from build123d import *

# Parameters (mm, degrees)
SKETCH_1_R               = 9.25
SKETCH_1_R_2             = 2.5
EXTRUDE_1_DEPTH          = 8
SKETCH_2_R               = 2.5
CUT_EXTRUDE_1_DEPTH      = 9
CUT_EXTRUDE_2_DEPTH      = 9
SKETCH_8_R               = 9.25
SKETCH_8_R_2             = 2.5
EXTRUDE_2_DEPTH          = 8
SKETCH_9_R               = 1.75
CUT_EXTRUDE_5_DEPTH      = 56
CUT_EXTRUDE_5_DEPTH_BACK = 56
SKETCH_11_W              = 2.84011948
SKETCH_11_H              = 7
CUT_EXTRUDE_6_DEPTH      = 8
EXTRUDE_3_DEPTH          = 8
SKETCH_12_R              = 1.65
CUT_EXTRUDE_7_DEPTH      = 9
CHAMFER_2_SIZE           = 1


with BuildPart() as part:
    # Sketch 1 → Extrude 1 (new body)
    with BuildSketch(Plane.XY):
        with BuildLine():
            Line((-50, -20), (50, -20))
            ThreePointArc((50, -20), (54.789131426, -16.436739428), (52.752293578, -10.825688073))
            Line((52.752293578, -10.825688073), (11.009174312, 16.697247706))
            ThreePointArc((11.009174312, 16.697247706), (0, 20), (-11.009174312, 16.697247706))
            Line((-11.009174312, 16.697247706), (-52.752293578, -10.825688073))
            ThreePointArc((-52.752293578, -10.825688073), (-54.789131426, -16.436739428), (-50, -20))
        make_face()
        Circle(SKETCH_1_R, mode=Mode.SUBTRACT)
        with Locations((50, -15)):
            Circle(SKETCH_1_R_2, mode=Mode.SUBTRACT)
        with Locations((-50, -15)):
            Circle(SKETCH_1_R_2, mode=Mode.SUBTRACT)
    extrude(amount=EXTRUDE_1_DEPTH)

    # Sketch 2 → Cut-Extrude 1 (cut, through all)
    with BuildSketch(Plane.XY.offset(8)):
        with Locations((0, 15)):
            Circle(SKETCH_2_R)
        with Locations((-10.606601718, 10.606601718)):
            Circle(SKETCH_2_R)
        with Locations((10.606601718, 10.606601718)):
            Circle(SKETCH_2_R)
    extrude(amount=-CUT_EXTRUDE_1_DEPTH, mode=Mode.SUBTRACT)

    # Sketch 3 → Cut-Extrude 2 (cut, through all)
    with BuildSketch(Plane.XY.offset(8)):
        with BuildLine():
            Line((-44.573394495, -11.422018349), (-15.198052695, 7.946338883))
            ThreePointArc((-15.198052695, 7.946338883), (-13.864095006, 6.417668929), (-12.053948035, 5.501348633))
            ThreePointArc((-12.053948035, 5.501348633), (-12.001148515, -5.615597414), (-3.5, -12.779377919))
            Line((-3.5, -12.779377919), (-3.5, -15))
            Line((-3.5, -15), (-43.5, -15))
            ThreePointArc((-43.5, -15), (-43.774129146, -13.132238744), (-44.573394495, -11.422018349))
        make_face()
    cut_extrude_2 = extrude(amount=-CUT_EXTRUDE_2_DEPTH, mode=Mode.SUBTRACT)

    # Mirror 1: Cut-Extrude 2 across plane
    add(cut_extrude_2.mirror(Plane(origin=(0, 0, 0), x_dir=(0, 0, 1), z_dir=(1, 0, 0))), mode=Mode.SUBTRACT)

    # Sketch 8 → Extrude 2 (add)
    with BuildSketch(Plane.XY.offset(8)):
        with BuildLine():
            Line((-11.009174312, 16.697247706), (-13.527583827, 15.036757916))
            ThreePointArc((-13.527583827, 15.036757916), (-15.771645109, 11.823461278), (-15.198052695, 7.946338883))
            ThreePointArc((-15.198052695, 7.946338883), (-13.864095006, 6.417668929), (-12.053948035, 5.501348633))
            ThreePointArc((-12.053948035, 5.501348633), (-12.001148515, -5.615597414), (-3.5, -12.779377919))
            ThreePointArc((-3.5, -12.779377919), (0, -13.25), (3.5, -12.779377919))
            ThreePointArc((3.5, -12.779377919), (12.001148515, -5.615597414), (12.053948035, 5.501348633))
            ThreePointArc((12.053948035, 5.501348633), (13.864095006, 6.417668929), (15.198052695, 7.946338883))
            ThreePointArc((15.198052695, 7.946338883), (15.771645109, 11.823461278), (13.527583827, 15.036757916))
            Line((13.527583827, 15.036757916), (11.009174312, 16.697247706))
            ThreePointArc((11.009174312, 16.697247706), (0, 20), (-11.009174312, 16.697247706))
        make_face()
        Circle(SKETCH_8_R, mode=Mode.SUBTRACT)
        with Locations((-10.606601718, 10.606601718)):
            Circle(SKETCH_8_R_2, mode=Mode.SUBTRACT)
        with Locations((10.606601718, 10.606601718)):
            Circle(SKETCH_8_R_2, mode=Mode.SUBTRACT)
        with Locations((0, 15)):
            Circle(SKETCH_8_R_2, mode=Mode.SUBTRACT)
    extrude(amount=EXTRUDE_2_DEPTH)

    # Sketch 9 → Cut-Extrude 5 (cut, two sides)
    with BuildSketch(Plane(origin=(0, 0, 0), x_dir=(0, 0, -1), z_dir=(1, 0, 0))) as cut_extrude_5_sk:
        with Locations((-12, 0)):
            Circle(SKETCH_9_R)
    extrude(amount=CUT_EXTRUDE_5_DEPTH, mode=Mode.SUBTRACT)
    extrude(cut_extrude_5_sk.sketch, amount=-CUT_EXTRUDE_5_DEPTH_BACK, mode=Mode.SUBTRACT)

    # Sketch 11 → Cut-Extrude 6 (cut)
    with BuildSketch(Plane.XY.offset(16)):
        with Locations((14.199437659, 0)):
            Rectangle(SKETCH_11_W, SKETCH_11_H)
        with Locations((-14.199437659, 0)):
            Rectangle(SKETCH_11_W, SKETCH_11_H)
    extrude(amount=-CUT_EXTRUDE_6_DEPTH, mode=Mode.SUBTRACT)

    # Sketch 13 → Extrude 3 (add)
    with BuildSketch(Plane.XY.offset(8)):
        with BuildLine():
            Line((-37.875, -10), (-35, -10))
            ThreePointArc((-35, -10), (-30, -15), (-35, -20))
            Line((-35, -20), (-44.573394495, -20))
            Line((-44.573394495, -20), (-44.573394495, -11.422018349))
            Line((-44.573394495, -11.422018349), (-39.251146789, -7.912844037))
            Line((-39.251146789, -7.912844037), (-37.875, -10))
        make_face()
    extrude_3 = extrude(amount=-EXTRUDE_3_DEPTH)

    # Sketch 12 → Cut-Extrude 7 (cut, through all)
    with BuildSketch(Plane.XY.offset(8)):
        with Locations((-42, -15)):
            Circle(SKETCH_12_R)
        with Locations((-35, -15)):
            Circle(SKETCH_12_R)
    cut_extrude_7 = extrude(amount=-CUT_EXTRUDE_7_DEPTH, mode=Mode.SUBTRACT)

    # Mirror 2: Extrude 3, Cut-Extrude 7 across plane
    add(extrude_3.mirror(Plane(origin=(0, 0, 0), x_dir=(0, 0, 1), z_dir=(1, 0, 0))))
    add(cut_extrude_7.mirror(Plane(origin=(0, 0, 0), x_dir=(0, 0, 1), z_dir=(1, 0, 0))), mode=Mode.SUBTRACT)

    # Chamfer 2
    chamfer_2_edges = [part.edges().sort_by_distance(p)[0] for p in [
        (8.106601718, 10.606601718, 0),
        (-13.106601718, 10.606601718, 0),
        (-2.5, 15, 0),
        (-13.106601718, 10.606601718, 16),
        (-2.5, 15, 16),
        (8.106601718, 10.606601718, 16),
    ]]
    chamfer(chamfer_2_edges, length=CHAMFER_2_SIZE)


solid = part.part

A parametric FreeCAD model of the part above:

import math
import FreeCAD as App
import Part
import Sketcher

V = App.Vector
Q = App.Units.Quantity


def edges_at(feature, points):
    """Names of the edges that pass closest to the given points."""
    edges = feature.Shape.Edges
    near = lambda p: min(range(len(edges)), key=lambda i: edges[i].distToShape(Part.Vertex(*p))[0])
    return sorted({f"Edge{near(p) + 1}" for p in points})

doc = App.newDocument("Part")
body = doc.addObject("PartDesign::Body", "Body")

sketch1 = body.newObject("Sketcher::SketchObject", "Sketch")
sketch1.AttachmentSupport = (doc.getObject("XY_Plane"), [""])
sketch1.MapMode = "FlatFace"
sketch1.addGeometry([
    Part.LineSegment(V(-50, -20, 0), V(50, -20, 0)),
    Part.ArcOfCircle(Part.Circle(V(50, -15, 0), V(0, 0, 1), 5), math.radians(-90), math.radians(57)),
    Part.LineSegment(V(52.8, -10.8, 0), V(11, 16.7, 0)),
    Part.ArcOfCircle(Part.Circle(V(0, 0, 0), V(0, 0, 1), 20), math.radians(57), math.radians(123)),
    Part.LineSegment(V(-11, 16.7, 0), V(-52.8, -10.8, 0)),
    Part.ArcOfCircle(Part.Circle(V(-50, -15, 0), V(0, 0, 1), 5), math.radians(123), math.radians(270)),
    Part.Circle(V(-50, -15, 0), V(0, 0, 1), 2.5),
    Part.Circle(V(50, -15, 0), V(0, 0, 1), 2.5),
    Part.Circle(V(0, 0, 0), V(0, 0, 1), 9.2),
], False)
sketch1.addConstraint([
    Sketcher.Constraint("Tangent", 0, 2, 1, 1),
    Sketcher.Constraint("Tangent", 1, 2, 2, 1),
    Sketcher.Constraint("Tangent", 2, 2, 3, 1),
    Sketcher.Constraint("Tangent", 3, 2, 4, 1),
    Sketcher.Constraint("Tangent", 4, 2, 5, 1),
    Sketcher.Constraint("Tangent", 5, 2, 0, 1),
    Sketcher.Constraint("Horizontal", 0),
    Sketcher.Constraint("Coincident", 3, 3, -1, 1),
    Sketcher.Constraint("Coincident", 8, 3, -1, 1),
    Sketcher.Constraint("Coincident", 6, 3, 5, 3),
    Sketcher.Constraint("Coincident", 7, 3, 1, 3),
    Sketcher.Constraint("Equal", 1, 5),
    Sketcher.Constraint("Equal", 6, 7),
    Sketcher.Constraint("Horizontal", 2, 2, 3, 2),
    Sketcher.Constraint("Diameter", 6, Q("5 mm")),
    Sketcher.Constraint("Radius", 1, Q("5 mm")),
    Sketcher.Constraint("Radius", 3, Q("20 mm")),
    Sketcher.Constraint("Diameter", 8, Q("18.5 mm")),
    Sketcher.Constraint("DistanceX", 0, 1, 0, 2, Q("100 mm")),
    Sketcher.Constraint("Distance", 2, Q("50 mm")),
])
pad1 = body.newObject("PartDesign::Pad", "Pad")
pad1.Profile = sketch1
pad1.Length = 8

sketch2 = body.newObject("Sketcher::SketchObject", "Sketch001")
sketch2.AttachmentSupport = (doc.getObject("XY_Plane"), [""])
sketch2.MapMode = "FlatFace"
sketch2.AttachmentOffset = App.Placement(V(0, 0, 8), App.Rotation())
sketch2.addGeometry([
    Part.Circle(V(0, 15, 0), V(0, 0, 1), 2.5),
    Part.Circle(V(-10.6, 10.6, 0), V(0, 0, 1), 2.5),
    Part.Circle(V(10.6, 10.6, 0), V(0, 0, 1), 2.5),
], False)
sketch2.addConstraint([
    Sketcher.Constraint("Equal", 0, 1),
    Sketcher.Constraint("Equal", 1, 2),
    Sketcher.Constraint("Symmetric", 1, 3, 2, 3, -2),
    Sketcher.Constraint("PointOnObject", 0, 3, -2),
    Sketcher.Constraint("Diameter", 0, Q("5 mm")),
    Sketcher.Constraint("DistanceY", -1, 1, 0, 3, Q("15 mm")),
    Sketcher.Constraint("DistanceX", 1, 3, -1, 1, Q("10.606602 mm")),
    Sketcher.Constraint("DistanceY", -1, 1, 1, 3, Q("10.606602 mm")),
])
pocket1 = body.newObject("PartDesign::Pocket", "Pocket")
pocket1.Profile = sketch2
pocket1.Type = "ThroughAll"

sketch3 = body.newObject("Sketcher::SketchObject", "Sketch002")
sketch3.AttachmentSupport = (doc.getObject("XY_Plane"), [""])
sketch3.MapMode = "FlatFace"
sketch3.AttachmentOffset = App.Placement(V(0, 0, 8), App.Rotation())
sketch3.addGeometry([
    Part.LineSegment(V(-15.2, 7.9, 0), V(-44.6, -11.4, 0)),
    Part.ArcOfCircle(Part.Circle(V(-50, -15, 0), V(0, 0, 1), 6.5), math.radians(0), math.radians(33)),
    Part.LineSegment(V(-43.5, -15, 0), V(-3.5, -15, 0)),
    Part.LineSegment(V(-3.5, -15, 0), V(-3.5, -12.8, 0)),
    Part.ArcOfCircle(Part.Circle(V(0, 0, 0), V(0, 0, 1), 13.3), math.radians(155), math.radians(255)),
    Part.ArcOfCircle(Part.Circle(V(-10.6, 10.6, 0), V(0, 0, 1), 5.3), math.radians(-150), math.radians(-106)),
], False)
sketch3.addConstraint([
    Sketcher.Constraint("Coincident", 0, 2, 1, 2),
    Sketcher.Constraint("Coincident", 1, 1, 2, 1),
    Sketcher.Constraint("Coincident", 2, 2, 3, 1),
    Sketcher.Constraint("Coincident", 3, 2, 4, 2),
    Sketcher.Constraint("Coincident", 4, 1, 5, 2),
    Sketcher.Constraint("Coincident", 5, 1, 0, 1),
    Sketcher.Constraint("Horizontal", 2),
    Sketcher.Constraint("Vertical", 3),
    Sketcher.Constraint("Coincident", 4, 3, -1, 1),
    Sketcher.Constraint("Radius", 1, Q("6.5 mm")),
    Sketcher.Constraint("DistanceX", 2, 1, 2, 2, Q("40 mm")),
    Sketcher.Constraint("Radius", 4, Q("13.25 mm")),
    Sketcher.Constraint("DistanceX", 1, 3, -1, 1, Q("50 mm")),
    Sketcher.Constraint("DistanceY", 1, 3, -1, 1, Q("15 mm")),
    Sketcher.Constraint("DistanceY", 1, 1, -1, 1, Q("15 mm")),
    Sketcher.Constraint("Radius", 5, Q("5.306451 mm")),
    Sketcher.Constraint("DistanceX", 5, 3, -1, 1, Q("10.606602 mm")),
    Sketcher.Constraint("DistanceY", -1, 1, 5, 3, Q("10.606602 mm")),
    Sketcher.Constraint("Distance", 0, Q("35.185849 mm")),
    Sketcher.Constraint("DistanceY", 0, 2, -1, 1, Q("11.422018 mm")),
])
pocket2 = body.newObject("PartDesign::Pocket", "Pocket001")
pocket2.Profile = sketch3
pocket2.Type = "ThroughAll"
doc.recompute()

mirrored = body.newObject("PartDesign::Mirrored", "Mirrored")
mirrored.Originals = [pocket2]
mirrored.MirrorPlane = (doc.getObject("YZ_Plane"), [""])
body.Tip = mirrored

sketch4 = body.newObject("Sketcher::SketchObject", "Sketch003")
sketch4.AttachmentSupport = (doc.getObject("XY_Plane"), [""])
sketch4.MapMode = "FlatFace"
sketch4.AttachmentOffset = App.Placement(V(0, 0, 8), App.Rotation())
sketch4.addGeometry([
    Part.LineSegment(V(-11, 16.7, 0), V(-13.5, 15, 0)),
    Part.ArcOfCircle(Part.Circle(V(-10.6, 10.6, 0), V(0, 0, 1), 5.3), math.radians(123), math.radians(210)),
    Part.ArcOfCircle(Part.Circle(V(-10.6, 10.6, 0), V(0, 0, 1), 5.3), math.radians(-150), math.radians(-106)),
    Part.ArcOfCircle(Part.Circle(V(0, 0, 0), V(0, 0, 1), 13.3), math.radians(155), math.radians(255)),
    Part.ArcOfCircle(Part.Circle(V(0, 0, 0), V(0, 0, 1), 13.2), math.radians(-105), math.radians(-75)),
    Part.ArcOfCircle(Part.Circle(V(0, 0, 0), V(0, 0, 1), 13.3), math.radians(-75), math.radians(25)),
    Part.ArcOfCircle(Part.Circle(V(10.6, 10.6, 0), V(0, 0, 1), 5.3), math.radians(-74), math.radians(-30)),
    Part.ArcOfCircle(Part.Circle(V(10.6, 10.6, 0), V(0, 0, 1), 5.3), math.radians(-30), math.radians(57)),
    Part.LineSegment(V(13.5, 15, 0), V(11, 16.7, 0)),
    Part.ArcOfCircle(Part.Circle(V(0, 0, 0), V(0, 0, 1), 20), math.radians(57), math.radians(123)),
    Part.Circle(V(0, 0, 0), V(0, 0, 1), 9.2),
    Part.Circle(V(-10.6, 10.6, 0), V(0, 0, 1), 2.5),
    Part.Circle(V(10.6, 10.6, 0), V(0, 0, 1), 2.5),
    Part.Circle(V(0, 15, 0), V(0, 0, 1), 2.5),
], False)
sketch4.addConstraint([
    Sketcher.Constraint("Tangent", 0, 2, 1, 1),
    Sketcher.Constraint("Tangent", 1, 2, 2, 1),
    Sketcher.Constraint("Coincident", 2, 2, 3, 1),
    Sketcher.Constraint("Tangent", 3, 2, 4, 1),
    Sketcher.Constraint("Tangent", 4, 2, 5, 1),
    Sketcher.Constraint("Coincident", 5, 2, 6, 1),
    Sketcher.Constraint("Tangent", 6, 2, 7, 1),
    Sketcher.Constraint("Tangent", 7, 2, 8, 1),
    Sketcher.Constraint("Tangent", 8, 2, 9, 1),
    Sketcher.Constraint("Tangent", 9, 2, 0, 1),
    Sketcher.Constraint("Coincident", 3, 3, -1, 1),
    Sketcher.Constraint("Coincident", 5, 3, -1, 1),
    Sketcher.Constraint("Coincident", 9, 3, -1, 1),
    Sketcher.Constraint("Coincident", 10, 3, -1, 1),
    Sketcher.Constraint("Coincident", 11, 3, 1, 3),
    Sketcher.Constraint("Coincident", 12, 3, 6, 3),
    Sketcher.Constraint("Equal", 1, 2),
    Sketcher.Constraint("Equal", 2, 6),
    Sketcher.Constraint("Equal", 6, 7),
    Sketcher.Constraint("Equal", 11, 12),
    Sketcher.Constraint("Equal", 12, 13),
    Sketcher.Constraint("Symmetric", 1, 3, 6, 3, -2),
    Sketcher.Constraint("PointOnObject", 13, 3, -2),
    Sketcher.Constraint("Horizontal", 3, 2, 4, 2),
    Sketcher.Constraint("Horizontal", 1, 2, 6, 2),
    Sketcher.Constraint("Diameter", 11, Q("5 mm")),
    Sketcher.Constraint("Radius", 9, Q("20 mm")),
    Sketcher.Constraint("Diameter", 10, Q("18.5 mm")),
    Sketcher.Constraint("Radius", 3, Q("13.25 mm")),
    Sketcher.Constraint("DistanceY", -1, 1, 13, 3, Q("15 mm")),
    Sketcher.Constraint("DistanceX", 3, 2, 4, 2, Q("7 mm")),
    Sketcher.Constraint("Radius", 1, Q("5.306451 mm")),
    Sketcher.Constraint("DistanceX", 1, 3, -1, 1, Q("10.606602 mm")),
    Sketcher.Constraint("DistanceY", -1, 1, 1, 3, Q("10.606602 mm")),
    Sketcher.Constraint("DistanceY", -1, 1, 1, 2, Q("7.946339 mm")),
])
pad2 = body.newObject("PartDesign::Pad", "Pad001")
pad2.Profile = sketch4
pad2.Length = 8

sketch5 = body.newObject("Sketcher::SketchObject", "Sketch004")
sketch5.AttachmentSupport = (doc.getObject("YZ_Plane"), [""])
sketch5.MapMode = "FlatFace"
sketch5.addGeometry(Part.Circle(V(0, 12, 0), V(0, 0, 1), 1.8), False)
sketch5.addConstraint([
    Sketcher.Constraint("PointOnObject", 0, 3, -2),
    Sketcher.Constraint("Diameter", 0, Q("3.5 mm")),
    Sketcher.Constraint("DistanceY", -1, 1, 0, 3, Q("12 mm")),
])
pocket3 = body.newObject("PartDesign::Pocket", "Pocket002")
pocket3.Profile = sketch5
pocket3.Type = "ThroughAll"
pocket3.Midplane = True

sketch6 = body.newObject("Sketcher::SketchObject", "Sketch005")
sketch6.AttachmentSupport = (doc.getObject("XY_Plane"), [""])
sketch6.MapMode = "FlatFace"
sketch6.AttachmentOffset = App.Placement(V(0, 0, 16), App.Rotation())
sketch6.addGeometry([
    Part.LineSegment(V(12.8, 3.5, 0), V(12.8, -3.5, 0)),
    Part.LineSegment(V(12.8, -3.5, 0), V(15.6, -3.5, 0)),
    Part.LineSegment(V(15.6, -3.5, 0), V(15.6, 3.5, 0)),
    Part.LineSegment(V(15.6, 3.5, 0), V(12.8, 3.5, 0)),
    Part.LineSegment(V(-15.6, 3.5, 0), V(-15.6, -3.5, 0)),
    Part.LineSegment(V(-15.6, -3.5, 0), V(-12.8, -3.5, 0)),
    Part.LineSegment(V(-12.8, -3.5, 0), V(-12.8, 3.5, 0)),
    Part.LineSegment(V(-12.8, 3.5, 0), V(-15.6, 3.5, 0)),
], False)
sketch6.addConstraint([
    Sketcher.Constraint("Coincident", 0, 2, 1, 1),
    Sketcher.Constraint("Coincident", 1, 2, 2, 1),
    Sketcher.Constraint("Coincident", 2, 2, 3, 1),
    Sketcher.Constraint("Coincident", 3, 2, 0, 1),
    Sketcher.Constraint("Coincident", 4, 2, 5, 1),
    Sketcher.Constraint("Coincident", 5, 2, 6, 1),
    Sketcher.Constraint("Coincident", 6, 2, 7, 1),
    Sketcher.Constraint("Coincident", 7, 2, 4, 1),
    Sketcher.Constraint("Vertical", 0),
    Sketcher.Constraint("Horizontal", 1),
    Sketcher.Constraint("Vertical", 2),
    Sketcher.Constraint("Horizontal", 3),
    Sketcher.Constraint("Vertical", 4),
    Sketcher.Constraint("Horizontal", 5),
    Sketcher.Constraint("Vertical", 6),
    Sketcher.Constraint("Horizontal", 7),
    Sketcher.Constraint("Symmetric", 2, 2, 4, 2, -1, 1),
    Sketcher.Constraint("Symmetric", 0, 2, 6, 2, -1, 1),
    Sketcher.Constraint("Horizontal", 1, 2, 4, 2),
    Sketcher.Constraint("DistanceY", 0, 2, 0, 1, Q("7 mm")),
    Sketcher.Constraint("DistanceX", 1, 1, 1, 2, Q("2.840119 mm")),
    Sketcher.Constraint("DistanceX", -1, 1, 0, 2, Q("12.779378 mm")),
])
pocket4 = body.newObject("PartDesign::Pocket", "Pocket003")
pocket4.Profile = sketch6
pocket4.Length = 8

sketch7 = body.newObject("Sketcher::SketchObject", "Sketch006")
sketch7.AttachmentSupport = (doc.getObject("XY_Plane"), [""])
sketch7.MapMode = "FlatFace"
sketch7.AttachmentOffset = App.Placement(V(0, 0, 8), App.Rotation())
sketch7.addGeometry([
    Part.LineSegment(V(-35, -10, 0), V(-37.9, -10, 0)),
    Part.LineSegment(V(-37.9, -10, 0), V(-39.3, -7.9, 0)),
    Part.LineSegment(V(-39.3, -7.9, 0), V(-44.6, -11.4, 0)),
    Part.LineSegment(V(-44.6, -11.4, 0), V(-44.6, -20, 0)),
    Part.LineSegment(V(-44.6, -20, 0), V(-35, -20, 0)),
    Part.ArcOfCircle(Part.Circle(V(-35, -15, 0), V(0, 0, 1), 5), math.radians(-90), math.radians(90)),
], False)
sketch7.addConstraint([
    Sketcher.Constraint("Coincident", 0, 2, 1, 1),
    Sketcher.Constraint("Coincident", 1, 2, 2, 1),
    Sketcher.Constraint("Coincident", 2, 2, 3, 1),
    Sketcher.Constraint("Coincident", 3, 2, 4, 1),
    Sketcher.Constraint("Tangent", 4, 2, 5, 1),
    Sketcher.Constraint("Tangent", 5, 2, 0, 1),
    Sketcher.Constraint("Horizontal", 0),
    Sketcher.Constraint("Vertical", 3),
    Sketcher.Constraint("Horizontal", 4),
    Sketcher.Constraint("Perpendicular", 1, 2),
    Sketcher.Constraint("Radius", 5, Q("5 mm")),
    Sketcher.Constraint("DistanceX", 5, 3, -1, 1, Q("35 mm")),
    Sketcher.Constraint("DistanceY", 5, 3, -1, 1, Q("15 mm")),
    Sketcher.Constraint("Distance", 1, Q("2.5 mm")),
    Sketcher.Constraint("DistanceX", 0, 2, 0, 1, Q("2.875 mm")),
    Sketcher.Constraint("Distance", 2, Q("6.375 mm")),
    Sketcher.Constraint("DistanceY", 3, 2, 3, 1, Q("8.577982 mm")),
])
pad3 = body.newObject("PartDesign::Pad", "Pad002")
pad3.Profile = sketch7
pad3.Length = 8
pad3.Reversed = True

sketch8 = body.newObject("Sketcher::SketchObject", "Sketch007")
sketch8.AttachmentSupport = (doc.getObject("XY_Plane"), [""])
sketch8.MapMode = "FlatFace"
sketch8.AttachmentOffset = App.Placement(V(0, 0, 8), App.Rotation())
sketch8.addGeometry([
    Part.Circle(V(-42, -15, 0), V(0, 0, 1), 1.6),
    Part.Circle(V(-35, -15, 0), V(0, 0, 1), 1.6),
], False)
sketch8.addConstraint([
    Sketcher.Constraint("Equal", 0, 1),
    Sketcher.Constraint("Horizontal", 0, 3, 1, 3),
    Sketcher.Constraint("Diameter", 0, Q("3.3 mm")),
    Sketcher.Constraint("DistanceX", 0, 3, -1, 1, Q("42 mm")),
    Sketcher.Constraint("DistanceY", 0, 3, -1, 1, Q("15 mm")),
    Sketcher.Constraint("DistanceX", 1, 3, -1, 1, Q("35 mm")),
])
pocket5 = body.newObject("PartDesign::Pocket", "Pocket004")
pocket5.Profile = sketch8
pocket5.Type = "ThroughAll"
doc.recompute()

mirrored2 = body.newObject("PartDesign::Mirrored", "Mirrored001")
mirrored2.Originals = [pad3, pocket5]
mirrored2.MirrorPlane = (doc.getObject("YZ_Plane"), [""])
body.Tip = mirrored2
doc.recompute()

chamfer = body.newObject("PartDesign::Chamfer", "Chamfer")
chamfer.Base = (mirrored2, edges_at(mirrored2, [
    (8.107, 10.607, 0),
    (-13.107, 10.607, 0),
    (-2.5, 15, 0),
    (-13.107, 10.607, 16),
    (-2.5, 15, 16),
    (8.107, 10.607, 16),
]))
chamfer.Size = 1

doc.recompute()
